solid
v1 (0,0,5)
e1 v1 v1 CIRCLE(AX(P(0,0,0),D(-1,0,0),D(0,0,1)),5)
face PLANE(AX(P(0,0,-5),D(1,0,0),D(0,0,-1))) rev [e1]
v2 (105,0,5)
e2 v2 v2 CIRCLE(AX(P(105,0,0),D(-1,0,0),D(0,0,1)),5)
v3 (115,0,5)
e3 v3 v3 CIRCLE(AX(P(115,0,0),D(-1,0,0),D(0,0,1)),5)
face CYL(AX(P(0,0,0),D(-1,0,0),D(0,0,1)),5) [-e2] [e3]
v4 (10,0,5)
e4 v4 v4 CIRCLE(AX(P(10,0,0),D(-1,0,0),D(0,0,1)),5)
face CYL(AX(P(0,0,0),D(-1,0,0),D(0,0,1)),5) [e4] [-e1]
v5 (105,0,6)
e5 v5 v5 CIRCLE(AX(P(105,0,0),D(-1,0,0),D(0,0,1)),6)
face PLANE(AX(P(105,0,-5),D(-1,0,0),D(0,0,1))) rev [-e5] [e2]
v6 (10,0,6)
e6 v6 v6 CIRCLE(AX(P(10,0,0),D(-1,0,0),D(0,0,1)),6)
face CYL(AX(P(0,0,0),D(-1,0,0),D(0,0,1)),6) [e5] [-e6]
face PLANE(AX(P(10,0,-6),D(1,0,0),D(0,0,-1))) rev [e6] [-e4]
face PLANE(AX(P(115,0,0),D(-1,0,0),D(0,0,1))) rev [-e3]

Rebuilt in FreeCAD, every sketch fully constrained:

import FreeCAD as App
import Part
import Sketcher

V = App.Vector
Q = App.Units.Quantity


def add_polygon(sketch, points):
    """Adds a closed chain of lines whose ends are joined by coincident constraints."""
    first, n = sketch.GeometryCount, len(points)
    for a, b in zip(points, points[1:] + points[:1]):
        sketch.addGeometry(Part.LineSegment(App.Vector(*a, 0), App.Vector(*b, 0)), False)
    for i in range(n):
        sketch.addConstraint(Sketcher.Constraint("Coincident", first + i, 2, first + (i + 1) % n, 1))

doc = App.newDocument("Part")
body = doc.addObject("PartDesign::Body", "Body")

# Sketch on XZ plane
sketch1 = body.newObject("Sketcher::SketchObject", "Sketch")
sketch1.AttachmentSupport = (doc.getObject("XZ_Plane"), [""])
sketch1.MapMode = "FlatFace"
add_polygon(sketch1, [(115, 0), (115, -5), (105, -5), (105, -6), (10, -6), (10, -5), (0, -5), (0, 0)])  # lines 0-7
sketch1.addConstraint([
    Sketcher.Constraint("Vertical", 0),
    Sketcher.Constraint("Horizontal", 1),
    Sketcher.Constraint("Vertical", 2),
    Sketcher.Constraint("Horizontal", 3),
    Sketcher.Constraint("Vertical", 4),
    Sketcher.Constraint("Horizontal", 5),
    Sketcher.Constraint("Vertical", 6),
    Sketcher.Constraint("Horizontal", 7),
    Sketcher.Constraint("Coincident", 6, 2, -1, 1),
    Sketcher.Constraint("Horizontal", 1, 2, 4, 2),
    Sketcher.Constraint("Equal", 1, 5),
    Sketcher.Constraint("DistanceX", 1, 2, 1, 1, Q("10 mm")),
    Sketcher.Constraint("DistanceX", 3, 2, 3, 1, Q("95 mm")),
    Sketcher.Constraint("DistanceY", 0, 2, 0, 1, Q("5 mm")),
    Sketcher.Constraint("DistanceY", 2, 2, 2, 1, Q("1 mm")),
])
revolution = body.newObject("PartDesign::Revolution", "Revolution")
revolution.Profile = sketch1
revolution.ReferenceAxis = (sketch1, ["H_Axis"])
revolution.Angle = 360

doc.recompute()
